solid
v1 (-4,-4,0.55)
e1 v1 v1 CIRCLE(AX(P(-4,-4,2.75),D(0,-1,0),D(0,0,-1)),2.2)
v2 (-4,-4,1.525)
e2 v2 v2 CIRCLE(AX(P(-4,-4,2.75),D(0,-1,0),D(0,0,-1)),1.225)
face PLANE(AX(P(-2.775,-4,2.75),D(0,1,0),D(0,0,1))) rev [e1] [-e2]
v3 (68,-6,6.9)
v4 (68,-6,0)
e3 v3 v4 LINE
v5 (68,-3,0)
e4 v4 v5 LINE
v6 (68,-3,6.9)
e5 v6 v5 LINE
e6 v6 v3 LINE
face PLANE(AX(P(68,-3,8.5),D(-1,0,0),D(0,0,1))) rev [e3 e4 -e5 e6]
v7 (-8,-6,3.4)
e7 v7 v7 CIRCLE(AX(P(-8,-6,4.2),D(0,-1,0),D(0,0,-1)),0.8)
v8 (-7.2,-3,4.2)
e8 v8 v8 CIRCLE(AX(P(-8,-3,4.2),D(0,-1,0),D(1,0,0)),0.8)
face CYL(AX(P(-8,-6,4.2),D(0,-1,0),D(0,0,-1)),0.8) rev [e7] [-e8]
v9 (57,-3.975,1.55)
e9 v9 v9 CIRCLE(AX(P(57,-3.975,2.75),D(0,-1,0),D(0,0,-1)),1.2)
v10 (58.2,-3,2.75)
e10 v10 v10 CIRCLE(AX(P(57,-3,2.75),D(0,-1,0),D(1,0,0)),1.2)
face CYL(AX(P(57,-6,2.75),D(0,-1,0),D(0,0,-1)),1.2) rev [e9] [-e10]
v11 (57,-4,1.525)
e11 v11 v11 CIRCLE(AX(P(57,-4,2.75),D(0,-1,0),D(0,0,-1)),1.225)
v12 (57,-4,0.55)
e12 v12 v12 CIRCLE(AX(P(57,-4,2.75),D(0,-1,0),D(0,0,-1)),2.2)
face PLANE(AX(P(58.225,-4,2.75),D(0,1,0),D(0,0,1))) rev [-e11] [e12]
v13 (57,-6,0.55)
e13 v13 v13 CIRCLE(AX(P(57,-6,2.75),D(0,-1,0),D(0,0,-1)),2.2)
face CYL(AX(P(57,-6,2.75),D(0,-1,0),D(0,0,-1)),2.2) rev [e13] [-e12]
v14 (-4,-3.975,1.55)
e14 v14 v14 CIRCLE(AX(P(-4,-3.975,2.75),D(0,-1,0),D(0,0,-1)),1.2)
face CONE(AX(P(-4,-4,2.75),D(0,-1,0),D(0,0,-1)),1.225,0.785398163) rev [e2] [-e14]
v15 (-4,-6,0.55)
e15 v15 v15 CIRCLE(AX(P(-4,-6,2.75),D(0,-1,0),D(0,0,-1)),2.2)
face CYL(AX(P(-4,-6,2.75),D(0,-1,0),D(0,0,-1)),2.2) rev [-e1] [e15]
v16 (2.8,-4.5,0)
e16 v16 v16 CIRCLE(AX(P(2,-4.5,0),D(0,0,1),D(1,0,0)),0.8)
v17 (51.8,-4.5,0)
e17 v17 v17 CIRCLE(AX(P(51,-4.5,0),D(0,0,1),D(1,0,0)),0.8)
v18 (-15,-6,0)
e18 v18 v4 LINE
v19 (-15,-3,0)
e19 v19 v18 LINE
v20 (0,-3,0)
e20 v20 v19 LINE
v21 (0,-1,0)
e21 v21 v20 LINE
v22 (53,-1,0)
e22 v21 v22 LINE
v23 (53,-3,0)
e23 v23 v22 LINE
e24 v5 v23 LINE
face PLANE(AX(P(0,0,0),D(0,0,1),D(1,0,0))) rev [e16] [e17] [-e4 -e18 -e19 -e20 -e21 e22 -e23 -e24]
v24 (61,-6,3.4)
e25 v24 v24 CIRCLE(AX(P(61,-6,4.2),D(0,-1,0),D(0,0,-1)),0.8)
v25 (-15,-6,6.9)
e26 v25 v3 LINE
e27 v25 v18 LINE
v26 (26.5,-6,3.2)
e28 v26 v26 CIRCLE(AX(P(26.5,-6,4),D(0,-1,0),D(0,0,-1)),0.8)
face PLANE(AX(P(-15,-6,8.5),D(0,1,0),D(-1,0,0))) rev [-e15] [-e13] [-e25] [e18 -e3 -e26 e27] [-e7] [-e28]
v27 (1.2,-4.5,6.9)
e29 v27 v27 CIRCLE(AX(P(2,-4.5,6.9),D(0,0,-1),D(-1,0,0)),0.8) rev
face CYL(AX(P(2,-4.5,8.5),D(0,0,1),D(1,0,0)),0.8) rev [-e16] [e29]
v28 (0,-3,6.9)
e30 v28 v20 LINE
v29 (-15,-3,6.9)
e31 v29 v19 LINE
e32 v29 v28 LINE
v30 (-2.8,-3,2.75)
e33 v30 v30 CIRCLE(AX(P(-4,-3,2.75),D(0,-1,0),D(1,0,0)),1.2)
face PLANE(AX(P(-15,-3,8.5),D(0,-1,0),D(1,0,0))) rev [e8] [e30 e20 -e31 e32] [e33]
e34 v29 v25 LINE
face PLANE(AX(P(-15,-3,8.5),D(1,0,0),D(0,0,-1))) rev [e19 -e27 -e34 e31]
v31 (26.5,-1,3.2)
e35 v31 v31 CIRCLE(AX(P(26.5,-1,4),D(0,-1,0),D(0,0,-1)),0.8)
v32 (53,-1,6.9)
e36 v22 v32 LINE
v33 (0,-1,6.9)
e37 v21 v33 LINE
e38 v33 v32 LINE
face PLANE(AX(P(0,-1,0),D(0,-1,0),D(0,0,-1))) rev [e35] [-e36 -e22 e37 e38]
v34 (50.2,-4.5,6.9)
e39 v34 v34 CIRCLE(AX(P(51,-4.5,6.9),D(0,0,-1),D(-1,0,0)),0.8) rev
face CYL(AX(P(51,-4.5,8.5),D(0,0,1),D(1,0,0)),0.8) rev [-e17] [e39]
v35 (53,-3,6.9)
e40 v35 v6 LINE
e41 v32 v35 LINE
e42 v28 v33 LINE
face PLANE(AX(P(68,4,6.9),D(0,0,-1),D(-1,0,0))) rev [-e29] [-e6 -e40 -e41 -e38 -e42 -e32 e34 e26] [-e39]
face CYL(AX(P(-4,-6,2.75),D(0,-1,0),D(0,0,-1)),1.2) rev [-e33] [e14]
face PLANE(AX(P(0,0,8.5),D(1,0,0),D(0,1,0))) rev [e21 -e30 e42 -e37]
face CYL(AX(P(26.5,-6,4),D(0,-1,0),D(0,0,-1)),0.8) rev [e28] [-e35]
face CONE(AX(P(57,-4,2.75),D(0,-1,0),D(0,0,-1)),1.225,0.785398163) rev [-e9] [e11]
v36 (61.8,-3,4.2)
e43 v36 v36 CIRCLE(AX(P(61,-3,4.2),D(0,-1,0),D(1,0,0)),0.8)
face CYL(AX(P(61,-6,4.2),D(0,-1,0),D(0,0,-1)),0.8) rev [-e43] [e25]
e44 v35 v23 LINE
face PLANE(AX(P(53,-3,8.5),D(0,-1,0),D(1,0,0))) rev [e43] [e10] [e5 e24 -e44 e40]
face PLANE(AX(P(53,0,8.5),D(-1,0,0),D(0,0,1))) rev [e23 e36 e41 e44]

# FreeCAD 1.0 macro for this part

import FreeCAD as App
import Part
import Sketcher

V = App.Vector
Q = App.Units.Quantity


def add_polygon(sketch, points):
    """Adds a closed chain of lines whose ends are joined by coincident constraints."""
    first, n = sketch.GeometryCount, len(points)
    for a, b in zip(points, points[1:] + points[:1]):
        sketch.addGeometry(Part.LineSegment(App.Vector(*a, 0), App.Vector(*b, 0)), False)
    for i in range(n):
        sketch.addConstraint(Sketcher.Constraint("Coincident", first + i, 2, first + (i + 1) % n, 1))

doc = App.newDocument("Part")
params = doc.addObject("Spreadsheet::Sheet", "Params")
for row, (alias, value) in enumerate([
    ("sketch1_width", "15 mm"),
    ("sketch1_width2", "53 mm"),
    ("sketch1_height", "3 mm"),
    ("pad1_length", "8.5 mm"),
    ("sketch2_width", "6 mm"),
    ("sketch2_width2", "2 mm"),
    ("sketch2_height", "2.2 mm"),
    ("sketch2_height2", "1.2 mm"),
    ("groove_angle", "360 deg"),
    ("linearpattern_pitch", "61 mm"),
    ("sketch3_width", "53 mm"),
    ("sketch3_height", "1 mm"),
    ("sketch4_diameter", "1.6 mm"),
    ("hole_diameter", "1.6 mm"),
    ("sketch5_width", "83 mm"),
    ("sketch5_height", "1.6 mm"),
    ("pocket2_length", "10 mm"),
    ("sketch6_diameter", "1.6 mm"),
    ("hole2_diameter", "1.6 mm"),
    ("sketch7_diameter", "1.6 mm"),
    ("hole3_diameter", "1.6 mm"),
    ("hole3_depth", "5.2 mm"),
], start=1):
    params.set(f"A{row}", alias)
    params.set(f"B{row}", "=" + value)
    params.setAlias(f"B{row}", alias)

body = doc.addObject("PartDesign::Body", "Body")

sketch1 = doc.addObject("Sketcher::SketchObject", "Sketch")
body.addObject(sketch1)
sketch1.AttachmentSupport = (doc.XY_Plane, [""])
sketch1.MapMode = "FlatFace"
add_polygon(sketch1, [(68, -3), (53, -3), (53, 0), (0, 0), (0, -3), (-15, -3), (-15, -6), (68, -6)])
sketch1.addConstraint(Sketcher.Constraint("Horizontal", 0))
sketch1.addConstraint(Sketcher.Constraint("Vertical", 1))
sketch1.addConstraint(Sketcher.Constraint("Horizontal", 2))
sketch1.addConstraint(Sketcher.Constraint("Vertical", 3))
sketch1.addConstraint(Sketcher.Constraint("Horizontal", 4))
sketch1.addConstraint(Sketcher.Constraint("Vertical", 5))
sketch1.addConstraint(Sketcher.Constraint("Horizontal", 6))
sketch1.addConstraint(Sketcher.Constraint("Vertical", 7))
sketch1.addConstraint(Sketcher.Constraint("Coincident", 2, 2, -1, 1))
sketch1.addConstraint(Sketcher.Constraint("Horizontal", 0, 2, 3, 2))
sketch1.addConstraint(Sketcher.Constraint("Equal", 0, 4))
sketch1.addConstraint(Sketcher.Constraint("Equal", 3, 5))
sketch1.addConstraint(Sketcher.Constraint("DistanceX", 0, 2, 0, 1, 15.0))
sketch1.addConstraint(Sketcher.Constraint("DistanceX", 2, 2, 2, 1, 53.0))
sketch1.addConstraint(Sketcher.Constraint("DistanceY", 1, 1, 1, 2, 3.0))
sketch1.setExpression("Constraints[20]", "Params.sketch1_width")
sketch1.setExpression("Constraints[21]", "Params.sketch1_width2")
sketch1.setExpression("Constraints[22]", "Params.sketch1_height")
pad1 = doc.addObject("PartDesign::Pad", "Pad")
body.addObject(pad1)
pad1.Profile = sketch1
pad1.setExpression("Length", "Params.pad1_length")

sketch2 = doc.addObject("Sketcher::SketchObject", "Sketch001")
body.addObject(sketch2)
sketch2.AttachmentSupport = (doc.YZ_Plane, [""])
sketch2.MapMode = "FlatFace"
sketch2.AttachmentOffset = App.Placement(V(0, 0, -4), App.Rotation())
add_polygon(sketch2, [(0, 2.75), (-6, 2.75), (-6, 0.55), (-4, 0.55), (-4, 1.525), (-3.975, 1.55), (0, 1.55)])
sketch2.addGeometry(Part.LineSegment(V(-6, 2.75, 0), V(0, 2.75, 0)), True)
sketch2.addConstraint(Sketcher.Constraint("Horizontal", 0))
sketch2.addConstraint(Sketcher.Constraint("Vertical", 1))
sketch2.addConstraint(Sketcher.Constraint("Horizontal", 2))
sketch2.addConstraint(Sketcher.Constraint("Vertical", 3))
sketch2.addConstraint(Sketcher.Constraint("Horizontal", 5))
sketch2.addConstraint(Sketcher.Constraint("Vertical", 6))
sketch2.addConstraint(Sketcher.Constraint("Horizontal", 7))
sketch2.addConstraint(Sketcher.Constraint("Coincident", 7, 1, 0, 2))
sketch2.addConstraint(Sketcher.Constraint("PointOnObject", 5, 2, -2))
sketch2.addConstraint(Sketcher.Constraint("PointOnObject", 7, 2, -2))
sketch2.addConstraint(Sketcher.Constraint("DistanceX", 0, 2, 0, 1, 6.0))
sketch2.addConstraint(Sketcher.Constraint("DistanceX", 2, 1, 2, 2, 2.0))
sketch2.addConstraint(Sketcher.Constraint("Angle", 4, Q("45 deg")))
sketch2.addConstraint(Sketcher.Constraint("DistanceY", 1, 2, 1, 1, 2.2))
sketch2.addConstraint(Sketcher.Constraint("DistanceY", 6, 1, 6, 2, 1.2))
sketch2.addConstraint(Sketcher.Constraint("DistanceX", 5, 1, 5, 2, 3.975))
sketch2.addConstraint(Sketcher.Constraint("DistanceY", -1, 1, 0, 2, 2.75))
sketch2.setExpression("Constraints[17]", "Params.sketch2_width")
sketch2.setExpression("Constraints[18]", "Params.sketch2_width2")
sketch2.setExpression("Constraints[20]", "Params.sketch2_height")
sketch2.setExpression("Constraints[21]", "Params.sketch2_height2")
groove = doc.addObject("PartDesign::Groove", "Groove")
body.addObject(groove)
groove.Profile = sketch2
groove.ReferenceAxis = (sketch2, ["Axis0"])
groove.setExpression("Angle", "Params.groove_angle")
doc.recompute()

linearpattern = doc.addObject("PartDesign::LinearPattern", "LinearPattern")
body.addObject(linearpattern)
linearpattern.Originals = [groove]
linearpattern.Direction = (doc.X_Axis, [""])
linearpattern.Mode = "offset"
linearpattern.setExpression("Offset", "Params.linearpattern_pitch")
linearpattern.Occurrences = 2
body.Tip = linearpattern

sketch3 = doc.addObject("Sketcher::SketchObject", "Sketch002")
body.addObject(sketch3)
sketch3.AttachmentSupport = (doc.XY_Plane, [""])
sketch3.MapMode = "FlatFace"
sketch3.AttachmentOffset = App.Placement(V(0, 0, 8.5), App.Rotation())
add_polygon(sketch3, [(0, 0), (0, -1), (53, -1), (53, 0)])
sketch3.addConstraint(Sketcher.Constraint("Vertical", 0))
sketch3.addConstraint(Sketcher.Constraint("Horizontal", 1))
sketch3.addConstraint(Sketcher.Constraint("Vertical", 2))
sketch3.addConstraint(Sketcher.Constraint("Horizontal", 3))
sketch3.addConstraint(Sketcher.Constraint("Coincident", 3, 2, -1, 1))
sketch3.addConstraint(Sketcher.Constraint("DistanceX", 1, 1, 1, 2, 53.0))
sketch3.addConstraint(Sketcher.Constraint("DistanceY", 0, 2, 0, 1, 1.0))
sketch3.setExpression("Constraints[9]", "Params.sketch3_width")
sketch3.setExpression("Constraints[10]", "Params.sketch3_height")
pocket1 = doc.addObject("PartDesign::Pocket", "Pocket")
body.addObject(pocket1)
pocket1.Profile = sketch3
pocket1.Type = "ThroughAll"

sketch4 = doc.addObject("Sketcher::SketchObject", "Sketch003")
body.addObject(sketch4)
sketch4.AttachmentSupport = (doc.XY_Plane, [""])
sketch4.MapMode = "FlatFace"
sketch4.AttachmentOffset = App.Placement(V(0, 0, 8.5), App.Rotation())
sketch4.addGeometry(Part.Circle(V(2, -4.5, 0), V(0, 0, 1), 0.8), False)
sketch4.addGeometry(Part.Circle(V(51, -4.5, 0), V(0, 0, 1), 0.8), False)
sketch4.addConstraint(Sketcher.Constraint("Equal", 0, 1))
sketch4.addConstraint(Sketcher.Constraint("Horizontal", 0, 3, 1, 3))
sketch4.addConstraint(Sketcher.Constraint("Diameter", 0, 1.6))
sketch4.addConstraint(Sketcher.Constraint("DistanceX", -1, 1, 0, 3, 2.0))
sketch4.addConstraint(Sketcher.Constraint("DistanceX", -1, 1, 1, 3, 51.0))
sketch4.addConstraint(Sketcher.Constraint("DistanceY", 0, 3, -1, 1, 4.5))
sketch4.setExpression("Constraints[2]", "Params.sketch4_diameter")
doc.recompute()
hole = doc.addObject("PartDesign::Hole", "Hole")
body.addObject(hole)
hole.Profile = sketch4
hole.ThreadType = "None"
hole.setExpression("Diameter", "Params.hole_diameter")
hole.DepthType = "ThroughAll"

sketch5 = doc.addObject("Sketcher::SketchObject", "Sketch004")
body.addObject(sketch5)
sketch5.AttachmentSupport = (doc.XZ_Plane, [""])
sketch5.MapMode = "FlatFace"
sketch5.AttachmentOffset = App.Placement(V(0, 0, 6), App.Rotation())
add_polygon(sketch5, [(-15, 8.5), (-15, 6.9), (68, 6.9), (68, 8.5)])
sketch5.addConstraint(Sketcher.Constraint("Vertical", 0))
sketch5.addConstraint(Sketcher.Constraint("Horizontal", 1))
sketch5.addConstraint(Sketcher.Constraint("Vertical", 2))
sketch5.addConstraint(Sketcher.Constraint("Horizontal", 3))
sketch5.addConstraint(Sketcher.Constraint("DistanceX", 1, 1, 1, 2, 83.0))
sketch5.addConstraint(Sketcher.Constraint("DistanceY", 0, 2, 0, 1, 1.6))
sketch5.addConstraint(Sketcher.Constraint("DistanceX", 0, 2, -1, 1, 15.0))
sketch5.addConstraint(Sketcher.Constraint("DistanceY", -1, 1, 0, 2, 6.9))
sketch5.setExpression("Constraints[8]", "Params.sketch5_width")
sketch5.setExpression("Constraints[9]", "Params.sketch5_height")
pocket2 = doc.addObject("PartDesign::Pocket", "Pocket001")
body.addObject(pocket2)
pocket2.Profile = sketch5
pocket2.setExpression("Length", "Params.pocket2_length")

sketch6 = doc.addObject("Sketcher::SketchObject", "Sketch005")
body.addObject(sketch6)
sketch6.AttachmentSupport = (doc.XZ_Plane, [""])
sketch6.MapMode = "FlatFace"
sketch6.AttachmentOffset = App.Placement(V(0, 0, 6), App.Rotation())
sketch6.addGeometry(Part.Circle(V(-8, 4.2, 0), V(0, 0, 1), 0.8), False)
sketch6.addGeometry(Part.Circle(V(61, 4.2, 0), V(0, 0, 1), 0.8), False)
sketch6.addConstraint(Sketcher.Constraint("Equal", 0, 1))
sketch6.addConstraint(Sketcher.Constraint("Horizontal", 0, 3, 1, 3))
sketch6.addConstraint(Sketcher.Constraint("Diameter", 0, 1.6))
sketch6.addConstraint(Sketcher.Constraint("DistanceX", 0, 3, -1, 1, 8.0))
sketch6.addConstraint(Sketcher.Constraint("DistanceX", -1, 1, 1, 3, 61.0))
sketch6.addConstraint(Sketcher.Constraint("DistanceY", -1, 1, 0, 3, 4.2))
sketch6.setExpression("Constraints[2]", "Params.sketch6_diameter")
doc.recompute()
hole2 = doc.addObject("PartDesign::Hole", "Hole001")
body.addObject(hole2)
hole2.Profile = sketch6
hole2.ThreadType = "None"
hole2.setExpression("Diameter", "Params.hole2_diameter")
hole2.DepthType = "ThroughAll"

sketch7 = doc.addObject("Sketcher::SketchObject", "Sketch006")
body.addObject(sketch7)
sketch7.AttachmentSupport = (doc.XZ_Plane, [""])
sketch7.MapMode = "FlatFace"
sketch7.AttachmentOffset = App.Placement(V(0, 0, 6), App.Rotation())
sketch7.addGeometry(Part.Circle(V(26.5, 4, 0), V(0, 0, 1), 0.8), False)
sketch7.addConstraint(Sketcher.Constraint("Diameter", 0, 1.6))
sketch7.addConstraint(Sketcher.Constraint("DistanceY", -1, 1, 0, 3, 4.0))
sketch7.addConstraint(Sketcher.Constraint("DistanceX", -1, 1, 0, 3, 26.5))
sketch7.setExpression("Constraints[0]", "Params.sketch7_diameter")
doc.recompute()
hole3 = doc.addObject("PartDesign::Hole", "Hole002")
body.addObject(hole3)
hole3.Profile = sketch7
hole3.ThreadType = "None"
hole3.setExpression("Diameter", "Params.hole3_diameter")
hole3.DepthType = "Dimension"
hole3.setExpression("Depth", "Params.hole3_depth")
hole3.DrillPoint = "Angled"
hole3.DrillPointAngle = 118

doc.recompute()
